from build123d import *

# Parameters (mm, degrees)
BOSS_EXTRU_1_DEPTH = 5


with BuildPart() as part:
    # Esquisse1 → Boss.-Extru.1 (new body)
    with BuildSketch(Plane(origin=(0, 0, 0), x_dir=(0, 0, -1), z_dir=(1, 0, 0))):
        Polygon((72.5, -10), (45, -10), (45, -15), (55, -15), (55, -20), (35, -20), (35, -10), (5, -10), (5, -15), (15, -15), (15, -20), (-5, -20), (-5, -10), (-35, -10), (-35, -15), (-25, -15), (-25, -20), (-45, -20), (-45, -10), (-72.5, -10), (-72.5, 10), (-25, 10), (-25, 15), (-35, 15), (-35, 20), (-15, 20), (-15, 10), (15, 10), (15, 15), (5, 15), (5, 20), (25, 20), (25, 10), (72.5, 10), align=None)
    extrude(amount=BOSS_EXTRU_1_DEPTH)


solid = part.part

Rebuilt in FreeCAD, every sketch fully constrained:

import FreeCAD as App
import Part
import Sketcher
from FreeCAD import Vector
Q = App.Units.Quantity

doc = App.newDocument("Part")
body = doc.addObject("PartDesign::Body", "Body")

sketch1 = body.newObject("Sketcher::SketchObject", "Sketch")
sketch1.AttachmentSupport = (doc.getObject("YZ_Plane"), [""])
sketch1.MapMode = "FlatFace"
sketch1.addGeometry([
    Part.LineSegment(Vector(-10, -45, 0), Vector(-10, -72.5, 0)),
    Part.LineSegment(Vector(-10, -72.5, 0), Vector(10, -72.5, 0)),
    Part.LineSegment(Vector(10, -72.5, 0), Vector(10, -25, 0)),
    Part.LineSegment(Vector(10, -25, 0), Vector(20, -25, 0)),
    Part.LineSegment(Vector(20, -25, 0), Vector(20, -5, 0)),
    Part.LineSegment(Vector(20, -5, 0), Vector(15, -5, 0)),
    Part.LineSegment(Vector(15, -5, 0), Vector(15, -15, 0)),
    Part.LineSegment(Vector(15, -15, 0), Vector(10, -15, 0)),
    Part.LineSegment(Vector(10, -15, 0), Vector(10, 15, 0)),
    Part.LineSegment(Vector(10, 15, 0), Vector(20, 15, 0)),
    Part.LineSegment(Vector(20, 15, 0), Vector(20, 35, 0)),
    Part.LineSegment(Vector(20, 35, 0), Vector(15, 35, 0)),
    Part.LineSegment(Vector(15, 35, 0), Vector(15, 25, 0)),
    Part.LineSegment(Vector(15, 25, 0), Vector(10, 25, 0)),
    Part.LineSegment(Vector(10, 25, 0), Vector(10, 72.5, 0)),
    Part.LineSegment(Vector(10, 72.5, 0), Vector(-10, 72.5, 0)),
    Part.LineSegment(Vector(-10, 72.5, 0), Vector(-10, 45, 0)),
    Part.LineSegment(Vector(-10, 45, 0), Vector(-20, 45, 0)),
    Part.LineSegment(Vector(-20, 45, 0), Vector(-20, 25, 0)),
    Part.LineSegment(Vector(-20, 25, 0), Vector(-15, 25, 0)),
    Part.LineSegment(Vector(-15, 25, 0), Vector(-15, 35, 0)),
    Part.LineSegment(Vector(-15, 35, 0), Vector(-10, 35, 0)),
    Part.LineSegment(Vector(-10, 35, 0), Vector(-10, 5, 0)),
    Part.LineSegment(Vector(-10, 5, 0), Vector(-20, 5, 0)),
    Part.LineSegment(Vector(-20, 5, 0), Vector(-20, -15, 0)),
    Part.LineSegment(Vector(-20, -15, 0), Vector(-15, -15, 0)),
    Part.LineSegment(Vector(-15, -15, 0), Vector(-15, -5, 0)),
    Part.LineSegment(Vector(-15, -5, 0), Vector(-10, -5, 0)),
    Part.LineSegment(Vector(-10, -5, 0), Vector(-10, -35, 0)),
    Part.LineSegment(Vector(-10, -35, 0), Vector(-20, -35, 0)),
    Part.LineSegment(Vector(-20, -35, 0), Vector(-20, -55, 0)),
    Part.LineSegment(Vector(-20, -55, 0), Vector(-15, -55, 0)),
    Part.LineSegment(Vector(-15, -55, 0), Vector(-15, -45, 0)),
    Part.LineSegment(Vector(-15, -45, 0), Vector(-10, -45, 0)),
], False)
sketch1.addConstraint([
    Sketcher.Constraint("Coincident", 0, 2, 1, 1),
    Sketcher.Constraint("Coincident", 1, 2, 2, 1),
    Sketcher.Constraint("Coincident", 2, 2, 3, 1),
    Sketcher.Constraint("Coincident", 3, 2, 4, 1),
    Sketcher.Constraint("Coincident", 4, 2, 5, 1),
    Sketcher.Constraint("Coincident", 5, 2, 6, 1),
    Sketcher.Constraint("Coincident", 6, 2, 7, 1),
    Sketcher.Constraint("Coincident", 7, 2, 8, 1),
    Sketcher.Constraint("Coincident", 8, 2, 9, 1),
    Sketcher.Constraint("Coincident", 9, 2, 10, 1),
    Sketcher.Constraint("Coincident", 10, 2, 11, 1),
    Sketcher.Constraint("Coincident", 11, 2, 12, 1),
    Sketcher.Constraint("Coincident", 12, 2, 13, 1),
    Sketcher.Constraint("Coincident", 13, 2, 14, 1),
    Sketcher.Constraint("Coincident", 14, 2, 15, 1),
    Sketcher.Constraint("Coincident", 15, 2, 16, 1),
    Sketcher.Constraint("Coincident", 16, 2, 17, 1),
    Sketcher.Constraint("Coincident", 17, 2, 18, 1),
    Sketcher.Constraint("Coincident", 18, 2, 19, 1),
    Sketcher.Constraint("Coincident", 19, 2, 20, 1),
    Sketcher.Constraint("Coincident", 20, 2, 21, 1),
    Sketcher.Constraint("Coincident", 21, 2, 22, 1),
    Sketcher.Constraint("Coincident", 22, 2, 23, 1),
    Sketcher.Constraint("Coincident", 23, 2, 24, 1),
    Sketcher.Constraint("Coincident", 24, 2, 25, 1),
    Sketcher.Constraint("Coincident", 25, 2, 26, 1),
    Sketcher.Constraint("Coincident", 26, 2, 27, 1),
    Sketcher.Constraint("Coincident", 27, 2, 28, 1),
    Sketcher.Constraint("Coincident", 28, 2, 29, 1),
    Sketcher.Constraint("Coincident", 29, 2, 30, 1),
    Sketcher.Constraint("Coincident", 30, 2, 31, 1),
    Sketcher.Constraint("Coincident", 31, 2, 32, 1),
    Sketcher.Constraint("Coincident", 32, 2, 33, 1),
    Sketcher.Constraint("Coincident", 33, 2, 0, 1),
    Sketcher.Constraint("Vertical", 0),
    Sketcher.Constraint("Horizontal", 1),
    Sketcher.Constraint("Vertical", 2),
    Sketcher.Constraint("Horizontal", 3),
    Sketcher.Constraint("Vertical", 4),
    Sketcher.Constraint("Horizontal", 5),
    Sketcher.Constraint("Vertical", 6),
    Sketcher.Constraint("Horizontal", 7),
    Sketcher.Constraint("Vertical", 8),
    Sketcher.Constraint("Horizontal", 9),
    Sketcher.Constraint("Vertical", 10),
    Sketcher.Constraint("Horizontal", 11),
    Sketcher.Constraint("Vertical", 12),
    Sketcher.Constraint("Horizontal", 13),
    Sketcher.Constraint("Vertical", 14),
    Sketcher.Constraint("Horizontal", 15),
    Sketcher.Constraint("Vertical", 16),
    Sketcher.Constraint("Horizontal", 17),
    Sketcher.Constraint("Vertical", 18),
    Sketcher.Constraint("Horizontal", 19),
    Sketcher.Constraint("Vertical", 20),
    Sketcher.Constraint("Horizontal", 21),
    Sketcher.Constraint("Vertical", 22),
    Sketcher.Constraint("Horizontal", 23),
    Sketcher.Constraint("Vertical", 24),
    Sketcher.Constraint("Horizontal", 25),
    Sketcher.Constraint("Vertical", 26),
    Sketcher.Constraint("Horizontal", 27),
    Sketcher.Constraint("Vertical", 28),
    Sketcher.Constraint("Horizontal", 29),
    Sketcher.Constraint("Vertical", 30),
    Sketcher.Constraint("Horizontal", 31),
    Sketcher.Constraint("Vertical", 32),
    Sketcher.Constraint("Horizontal", 33),
    Sketcher.Constraint("Symmetric", 0, 2, 14, 2, -1, 1),
    Sketcher.Constraint("Symmetric", 3, 2, 18, 2, -1, 1),
    Sketcher.Constraint("Symmetric", 4, 2, 23, 2, -1, 1),
    Sketcher.Constraint("Symmetric", 9, 2, 24, 2, -1, 1),
    Sketcher.Constraint("Symmetric", 10, 2, 29, 2, -1, 1),
    Sketcher.Constraint("Symmetric", 12, 2, 19, 2, -2),
    Sketcher.Constraint("Symmetric", 6, 2, 25, 2, -2),
    Sketcher.Constraint("Symmetric", 22, 2, 27, 2, -1),
    Sketcher.Constraint("Symmetric", 16, 2, 33, 2, -1),
    Sketcher.Constraint("Horizontal", 11, 2, 20, 2),
    Sketcher.Constraint("Vertical", 2, 2, 7, 2),
    Sketcher.Constraint("Vertical", 6, 2, 11, 2),
    Sketcher.Constraint("Vertical", 8, 2, 13, 2),
    Sketcher.Constraint("Vertical", 16, 2, 21, 2),
    Sketcher.Constraint("Vertical", 26, 2, 31, 2),
    Sketcher.Constraint("Equal", 5, 7),
    Sketcher.Constraint("Equal", 15, 4),
    Sketcher.Constraint("Equal", 29, 6),
    Sketcher.Constraint("Equal", 4, 10),
    Sketcher.Constraint("Equal", 10, 18),
    Sketcher.Constraint("Equal", 8, 22),
    Sketcher.Constraint("Equal", 24, 30),
    Sketcher.Constraint("DistanceX", 1, 1, 1, 2, Q("20 mm")),
    Sketcher.Constraint("DistanceX", 3, 1, 3, 2, Q("10 mm")),
    Sketcher.Constraint("DistanceY", 0, 2, 0, 1, Q("27.5 mm")),
])
pad1 = body.newObject("PartDesign::Pad", "Pad")
pad1.Profile = sketch1
pad1.Length = 5

doc.recompute()
